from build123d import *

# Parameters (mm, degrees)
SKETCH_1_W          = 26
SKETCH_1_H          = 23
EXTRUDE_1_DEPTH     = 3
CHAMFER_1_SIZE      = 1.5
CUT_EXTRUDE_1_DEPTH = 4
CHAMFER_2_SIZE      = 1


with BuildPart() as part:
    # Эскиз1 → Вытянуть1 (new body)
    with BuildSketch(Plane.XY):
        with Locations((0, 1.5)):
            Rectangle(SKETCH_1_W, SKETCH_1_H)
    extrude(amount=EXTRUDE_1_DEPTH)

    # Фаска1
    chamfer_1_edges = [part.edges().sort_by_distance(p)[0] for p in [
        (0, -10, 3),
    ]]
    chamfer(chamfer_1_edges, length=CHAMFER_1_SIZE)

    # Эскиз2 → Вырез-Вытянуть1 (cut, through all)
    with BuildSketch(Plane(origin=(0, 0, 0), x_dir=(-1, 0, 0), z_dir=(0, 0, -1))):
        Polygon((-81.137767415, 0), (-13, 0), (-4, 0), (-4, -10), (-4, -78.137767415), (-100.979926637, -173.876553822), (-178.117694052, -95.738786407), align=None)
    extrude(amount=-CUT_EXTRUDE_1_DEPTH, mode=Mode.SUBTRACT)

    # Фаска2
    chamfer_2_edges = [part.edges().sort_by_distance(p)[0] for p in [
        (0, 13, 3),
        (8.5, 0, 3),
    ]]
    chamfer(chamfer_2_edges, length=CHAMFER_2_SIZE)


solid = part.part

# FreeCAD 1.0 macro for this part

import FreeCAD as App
import Part
import Sketcher


def edges_at(feature, points):
    """Names of the edges that pass closest to the given points."""
    edges = feature.Shape.Edges
    near = lambda p: min(range(len(edges)), key=lambda i: edges[i].distToShape(Part.Vertex(*p))[0])
    return sorted({f"Edge{near(p) + 1}" for p in points})

doc = App.newDocument("Part")
body = doc.addObject("PartDesign::Body", "Body")

# Sketch on XY plane
sketch1 = doc.addObject("Sketcher::SketchObject", "Sketch")
body.addObject(sketch1)
sketch1.AttachmentSupport = (doc.XY_Plane, [""])
sketch1.MapMode = "FlatFace"
sketch1.addGeometry(Part.LineSegment(App.Vector(-13, 13, 0), App.Vector(-13, -10, 0)), False)
sketch1.addGeometry(Part.LineSegment(App.Vector(-13, -10, 0), App.Vector(13, -10, 0)), False)
sketch1.addGeometry(Part.LineSegment(App.Vector(13, -10, 0), App.Vector(13, 13, 0)), False)
sketch1.addGeometry(Part.LineSegment(App.Vector(13, 13, 0), App.Vector(-13, 13, 0)), False)
sketch1.addConstraint(Sketcher.Constraint("Coincident", 0, 2, 1, 1))
sketch1.addConstraint(Sketcher.Constraint("Coincident", 1, 2, 2, 1))
sketch1.addConstraint(Sketcher.Constraint("Coincident", 2, 2, 3, 1))
sketch1.addConstraint(Sketcher.Constraint("Coincident", 3, 2, 0, 1))
sketch1.addConstraint(Sketcher.Constraint("Vertical", 0))
sketch1.addConstraint(Sketcher.Constraint("Horizontal", 1))
sketch1.addConstraint(Sketcher.Constraint("Vertical", 2))
sketch1.addConstraint(Sketcher.Constraint("Horizontal", 3))
sketch1.addConstraint(Sketcher.Constraint("DistanceX", 1, 1, 1, 2, 26.0))
sketch1.addConstraint(Sketcher.Constraint("DistanceY", 0, 2, 0, 1, 23.0))
sketch1.addConstraint(Sketcher.Constraint("DistanceX", 0, 2, -1, 1, 13.0))
sketch1.addConstraint(Sketcher.Constraint("DistanceY", 0, 2, -1, 1, 10.0))
pad1 = doc.addObject("PartDesign::Pad", "Pad")
body.addObject(pad1)
pad1.Profile = sketch1
pad1.Length = 3
doc.recompute()

chamfer = doc.addObject("PartDesign::Chamfer", "Chamfer")
body.addObject(chamfer)
chamfer.Base = (pad1, edges_at(pad1, [(0, -10, 3)]))
chamfer.Size = 1.5

# Sketch on XY plane
sketch2 = doc.addObject("Sketcher::SketchObject", "Sketch001")
body.addObject(sketch2)
sketch2.AttachmentSupport = (doc.XY_Plane, [""])
sketch2.MapMode = "FlatFace"
sketch2.addGeometry(Part.LineSegment(App.Vector(4, 0, 0), App.Vector(81.137767, 0, 0)), False)
sketch2.addGeometry(Part.LineSegment(App.Vector(81.137767, 0, 0), App.Vector(178.117694, -95.738786, 0)), False)
sketch2.addGeometry(Part.LineSegment(App.Vector(178.117694, -95.738786, 0), App.Vector(100.979927, -173.876554, 0)), False)
sketch2.addGeometry(Part.LineSegment(App.Vector(100.979927, -173.876554, 0), App.Vector(4, -78.137767, 0)), False)
sketch2.addGeometry(Part.LineSegment(App.Vector(4, -78.137767, 0), App.Vector(4, 0, 0)), False)
sketch2.addConstraint(Sketcher.Constraint("Coincident", 0, 2, 1, 1))
sketch2.addConstraint(Sketcher.Constraint("Coincident", 1, 2, 2, 1))
sketch2.addConstraint(Sketcher.Constraint("Coincident", 2, 2, 3, 1))
sketch2.addConstraint(Sketcher.Constraint("Coincident", 3, 2, 4, 1))
sketch2.addConstraint(Sketcher.Constraint("Coincident", 4, 2, 0, 1))
sketch2.addConstraint(Sketcher.Constraint("Horizontal", 0))
sketch2.addConstraint(Sketcher.Constraint("Vertical", 4))
sketch2.addConstraint(Sketcher.Constraint("PointOnObject", 0, 2, -1))
sketch2.addConstraint(Sketcher.Constraint("Perpendicular", 1, 2))
sketch2.addConstraint(Sketcher.Constraint("Perpendicular", 2, 3))
sketch2.addConstraint(Sketcher.Constraint("Equal", 1, 3))
sketch2.addConstraint(Sketcher.Constraint("DistanceX", -1, 1, 3, 2, 4.0))
sketch2.addConstraint(Sketcher.Constraint("Distance", 2, 109.798661))
sketch2.addConstraint(Sketcher.Constraint("DistanceX", 0, 1, 0, 2, 77.137767))
sketch2.addConstraint(Sketcher.Constraint("DistanceX", 0, 2, 2, 2, 19.842159))
pocket1 = doc.addObject("PartDesign::Pocket", "Pocket")
body.addObject(pocket1)
pocket1.Profile = sketch2
pocket1.Type = "ThroughAll"
pocket1.Reversed = True
doc.recompute()

chamfer2 = doc.addObject("PartDesign::Chamfer", "Chamfer001")
body.addObject(chamfer2)
chamfer2.Base = (pocket1, edges_at(pocket1, [(0, 13, 3), (8.5, 0, 3)]))
chamfer2.Size = 1

doc.recompute()
